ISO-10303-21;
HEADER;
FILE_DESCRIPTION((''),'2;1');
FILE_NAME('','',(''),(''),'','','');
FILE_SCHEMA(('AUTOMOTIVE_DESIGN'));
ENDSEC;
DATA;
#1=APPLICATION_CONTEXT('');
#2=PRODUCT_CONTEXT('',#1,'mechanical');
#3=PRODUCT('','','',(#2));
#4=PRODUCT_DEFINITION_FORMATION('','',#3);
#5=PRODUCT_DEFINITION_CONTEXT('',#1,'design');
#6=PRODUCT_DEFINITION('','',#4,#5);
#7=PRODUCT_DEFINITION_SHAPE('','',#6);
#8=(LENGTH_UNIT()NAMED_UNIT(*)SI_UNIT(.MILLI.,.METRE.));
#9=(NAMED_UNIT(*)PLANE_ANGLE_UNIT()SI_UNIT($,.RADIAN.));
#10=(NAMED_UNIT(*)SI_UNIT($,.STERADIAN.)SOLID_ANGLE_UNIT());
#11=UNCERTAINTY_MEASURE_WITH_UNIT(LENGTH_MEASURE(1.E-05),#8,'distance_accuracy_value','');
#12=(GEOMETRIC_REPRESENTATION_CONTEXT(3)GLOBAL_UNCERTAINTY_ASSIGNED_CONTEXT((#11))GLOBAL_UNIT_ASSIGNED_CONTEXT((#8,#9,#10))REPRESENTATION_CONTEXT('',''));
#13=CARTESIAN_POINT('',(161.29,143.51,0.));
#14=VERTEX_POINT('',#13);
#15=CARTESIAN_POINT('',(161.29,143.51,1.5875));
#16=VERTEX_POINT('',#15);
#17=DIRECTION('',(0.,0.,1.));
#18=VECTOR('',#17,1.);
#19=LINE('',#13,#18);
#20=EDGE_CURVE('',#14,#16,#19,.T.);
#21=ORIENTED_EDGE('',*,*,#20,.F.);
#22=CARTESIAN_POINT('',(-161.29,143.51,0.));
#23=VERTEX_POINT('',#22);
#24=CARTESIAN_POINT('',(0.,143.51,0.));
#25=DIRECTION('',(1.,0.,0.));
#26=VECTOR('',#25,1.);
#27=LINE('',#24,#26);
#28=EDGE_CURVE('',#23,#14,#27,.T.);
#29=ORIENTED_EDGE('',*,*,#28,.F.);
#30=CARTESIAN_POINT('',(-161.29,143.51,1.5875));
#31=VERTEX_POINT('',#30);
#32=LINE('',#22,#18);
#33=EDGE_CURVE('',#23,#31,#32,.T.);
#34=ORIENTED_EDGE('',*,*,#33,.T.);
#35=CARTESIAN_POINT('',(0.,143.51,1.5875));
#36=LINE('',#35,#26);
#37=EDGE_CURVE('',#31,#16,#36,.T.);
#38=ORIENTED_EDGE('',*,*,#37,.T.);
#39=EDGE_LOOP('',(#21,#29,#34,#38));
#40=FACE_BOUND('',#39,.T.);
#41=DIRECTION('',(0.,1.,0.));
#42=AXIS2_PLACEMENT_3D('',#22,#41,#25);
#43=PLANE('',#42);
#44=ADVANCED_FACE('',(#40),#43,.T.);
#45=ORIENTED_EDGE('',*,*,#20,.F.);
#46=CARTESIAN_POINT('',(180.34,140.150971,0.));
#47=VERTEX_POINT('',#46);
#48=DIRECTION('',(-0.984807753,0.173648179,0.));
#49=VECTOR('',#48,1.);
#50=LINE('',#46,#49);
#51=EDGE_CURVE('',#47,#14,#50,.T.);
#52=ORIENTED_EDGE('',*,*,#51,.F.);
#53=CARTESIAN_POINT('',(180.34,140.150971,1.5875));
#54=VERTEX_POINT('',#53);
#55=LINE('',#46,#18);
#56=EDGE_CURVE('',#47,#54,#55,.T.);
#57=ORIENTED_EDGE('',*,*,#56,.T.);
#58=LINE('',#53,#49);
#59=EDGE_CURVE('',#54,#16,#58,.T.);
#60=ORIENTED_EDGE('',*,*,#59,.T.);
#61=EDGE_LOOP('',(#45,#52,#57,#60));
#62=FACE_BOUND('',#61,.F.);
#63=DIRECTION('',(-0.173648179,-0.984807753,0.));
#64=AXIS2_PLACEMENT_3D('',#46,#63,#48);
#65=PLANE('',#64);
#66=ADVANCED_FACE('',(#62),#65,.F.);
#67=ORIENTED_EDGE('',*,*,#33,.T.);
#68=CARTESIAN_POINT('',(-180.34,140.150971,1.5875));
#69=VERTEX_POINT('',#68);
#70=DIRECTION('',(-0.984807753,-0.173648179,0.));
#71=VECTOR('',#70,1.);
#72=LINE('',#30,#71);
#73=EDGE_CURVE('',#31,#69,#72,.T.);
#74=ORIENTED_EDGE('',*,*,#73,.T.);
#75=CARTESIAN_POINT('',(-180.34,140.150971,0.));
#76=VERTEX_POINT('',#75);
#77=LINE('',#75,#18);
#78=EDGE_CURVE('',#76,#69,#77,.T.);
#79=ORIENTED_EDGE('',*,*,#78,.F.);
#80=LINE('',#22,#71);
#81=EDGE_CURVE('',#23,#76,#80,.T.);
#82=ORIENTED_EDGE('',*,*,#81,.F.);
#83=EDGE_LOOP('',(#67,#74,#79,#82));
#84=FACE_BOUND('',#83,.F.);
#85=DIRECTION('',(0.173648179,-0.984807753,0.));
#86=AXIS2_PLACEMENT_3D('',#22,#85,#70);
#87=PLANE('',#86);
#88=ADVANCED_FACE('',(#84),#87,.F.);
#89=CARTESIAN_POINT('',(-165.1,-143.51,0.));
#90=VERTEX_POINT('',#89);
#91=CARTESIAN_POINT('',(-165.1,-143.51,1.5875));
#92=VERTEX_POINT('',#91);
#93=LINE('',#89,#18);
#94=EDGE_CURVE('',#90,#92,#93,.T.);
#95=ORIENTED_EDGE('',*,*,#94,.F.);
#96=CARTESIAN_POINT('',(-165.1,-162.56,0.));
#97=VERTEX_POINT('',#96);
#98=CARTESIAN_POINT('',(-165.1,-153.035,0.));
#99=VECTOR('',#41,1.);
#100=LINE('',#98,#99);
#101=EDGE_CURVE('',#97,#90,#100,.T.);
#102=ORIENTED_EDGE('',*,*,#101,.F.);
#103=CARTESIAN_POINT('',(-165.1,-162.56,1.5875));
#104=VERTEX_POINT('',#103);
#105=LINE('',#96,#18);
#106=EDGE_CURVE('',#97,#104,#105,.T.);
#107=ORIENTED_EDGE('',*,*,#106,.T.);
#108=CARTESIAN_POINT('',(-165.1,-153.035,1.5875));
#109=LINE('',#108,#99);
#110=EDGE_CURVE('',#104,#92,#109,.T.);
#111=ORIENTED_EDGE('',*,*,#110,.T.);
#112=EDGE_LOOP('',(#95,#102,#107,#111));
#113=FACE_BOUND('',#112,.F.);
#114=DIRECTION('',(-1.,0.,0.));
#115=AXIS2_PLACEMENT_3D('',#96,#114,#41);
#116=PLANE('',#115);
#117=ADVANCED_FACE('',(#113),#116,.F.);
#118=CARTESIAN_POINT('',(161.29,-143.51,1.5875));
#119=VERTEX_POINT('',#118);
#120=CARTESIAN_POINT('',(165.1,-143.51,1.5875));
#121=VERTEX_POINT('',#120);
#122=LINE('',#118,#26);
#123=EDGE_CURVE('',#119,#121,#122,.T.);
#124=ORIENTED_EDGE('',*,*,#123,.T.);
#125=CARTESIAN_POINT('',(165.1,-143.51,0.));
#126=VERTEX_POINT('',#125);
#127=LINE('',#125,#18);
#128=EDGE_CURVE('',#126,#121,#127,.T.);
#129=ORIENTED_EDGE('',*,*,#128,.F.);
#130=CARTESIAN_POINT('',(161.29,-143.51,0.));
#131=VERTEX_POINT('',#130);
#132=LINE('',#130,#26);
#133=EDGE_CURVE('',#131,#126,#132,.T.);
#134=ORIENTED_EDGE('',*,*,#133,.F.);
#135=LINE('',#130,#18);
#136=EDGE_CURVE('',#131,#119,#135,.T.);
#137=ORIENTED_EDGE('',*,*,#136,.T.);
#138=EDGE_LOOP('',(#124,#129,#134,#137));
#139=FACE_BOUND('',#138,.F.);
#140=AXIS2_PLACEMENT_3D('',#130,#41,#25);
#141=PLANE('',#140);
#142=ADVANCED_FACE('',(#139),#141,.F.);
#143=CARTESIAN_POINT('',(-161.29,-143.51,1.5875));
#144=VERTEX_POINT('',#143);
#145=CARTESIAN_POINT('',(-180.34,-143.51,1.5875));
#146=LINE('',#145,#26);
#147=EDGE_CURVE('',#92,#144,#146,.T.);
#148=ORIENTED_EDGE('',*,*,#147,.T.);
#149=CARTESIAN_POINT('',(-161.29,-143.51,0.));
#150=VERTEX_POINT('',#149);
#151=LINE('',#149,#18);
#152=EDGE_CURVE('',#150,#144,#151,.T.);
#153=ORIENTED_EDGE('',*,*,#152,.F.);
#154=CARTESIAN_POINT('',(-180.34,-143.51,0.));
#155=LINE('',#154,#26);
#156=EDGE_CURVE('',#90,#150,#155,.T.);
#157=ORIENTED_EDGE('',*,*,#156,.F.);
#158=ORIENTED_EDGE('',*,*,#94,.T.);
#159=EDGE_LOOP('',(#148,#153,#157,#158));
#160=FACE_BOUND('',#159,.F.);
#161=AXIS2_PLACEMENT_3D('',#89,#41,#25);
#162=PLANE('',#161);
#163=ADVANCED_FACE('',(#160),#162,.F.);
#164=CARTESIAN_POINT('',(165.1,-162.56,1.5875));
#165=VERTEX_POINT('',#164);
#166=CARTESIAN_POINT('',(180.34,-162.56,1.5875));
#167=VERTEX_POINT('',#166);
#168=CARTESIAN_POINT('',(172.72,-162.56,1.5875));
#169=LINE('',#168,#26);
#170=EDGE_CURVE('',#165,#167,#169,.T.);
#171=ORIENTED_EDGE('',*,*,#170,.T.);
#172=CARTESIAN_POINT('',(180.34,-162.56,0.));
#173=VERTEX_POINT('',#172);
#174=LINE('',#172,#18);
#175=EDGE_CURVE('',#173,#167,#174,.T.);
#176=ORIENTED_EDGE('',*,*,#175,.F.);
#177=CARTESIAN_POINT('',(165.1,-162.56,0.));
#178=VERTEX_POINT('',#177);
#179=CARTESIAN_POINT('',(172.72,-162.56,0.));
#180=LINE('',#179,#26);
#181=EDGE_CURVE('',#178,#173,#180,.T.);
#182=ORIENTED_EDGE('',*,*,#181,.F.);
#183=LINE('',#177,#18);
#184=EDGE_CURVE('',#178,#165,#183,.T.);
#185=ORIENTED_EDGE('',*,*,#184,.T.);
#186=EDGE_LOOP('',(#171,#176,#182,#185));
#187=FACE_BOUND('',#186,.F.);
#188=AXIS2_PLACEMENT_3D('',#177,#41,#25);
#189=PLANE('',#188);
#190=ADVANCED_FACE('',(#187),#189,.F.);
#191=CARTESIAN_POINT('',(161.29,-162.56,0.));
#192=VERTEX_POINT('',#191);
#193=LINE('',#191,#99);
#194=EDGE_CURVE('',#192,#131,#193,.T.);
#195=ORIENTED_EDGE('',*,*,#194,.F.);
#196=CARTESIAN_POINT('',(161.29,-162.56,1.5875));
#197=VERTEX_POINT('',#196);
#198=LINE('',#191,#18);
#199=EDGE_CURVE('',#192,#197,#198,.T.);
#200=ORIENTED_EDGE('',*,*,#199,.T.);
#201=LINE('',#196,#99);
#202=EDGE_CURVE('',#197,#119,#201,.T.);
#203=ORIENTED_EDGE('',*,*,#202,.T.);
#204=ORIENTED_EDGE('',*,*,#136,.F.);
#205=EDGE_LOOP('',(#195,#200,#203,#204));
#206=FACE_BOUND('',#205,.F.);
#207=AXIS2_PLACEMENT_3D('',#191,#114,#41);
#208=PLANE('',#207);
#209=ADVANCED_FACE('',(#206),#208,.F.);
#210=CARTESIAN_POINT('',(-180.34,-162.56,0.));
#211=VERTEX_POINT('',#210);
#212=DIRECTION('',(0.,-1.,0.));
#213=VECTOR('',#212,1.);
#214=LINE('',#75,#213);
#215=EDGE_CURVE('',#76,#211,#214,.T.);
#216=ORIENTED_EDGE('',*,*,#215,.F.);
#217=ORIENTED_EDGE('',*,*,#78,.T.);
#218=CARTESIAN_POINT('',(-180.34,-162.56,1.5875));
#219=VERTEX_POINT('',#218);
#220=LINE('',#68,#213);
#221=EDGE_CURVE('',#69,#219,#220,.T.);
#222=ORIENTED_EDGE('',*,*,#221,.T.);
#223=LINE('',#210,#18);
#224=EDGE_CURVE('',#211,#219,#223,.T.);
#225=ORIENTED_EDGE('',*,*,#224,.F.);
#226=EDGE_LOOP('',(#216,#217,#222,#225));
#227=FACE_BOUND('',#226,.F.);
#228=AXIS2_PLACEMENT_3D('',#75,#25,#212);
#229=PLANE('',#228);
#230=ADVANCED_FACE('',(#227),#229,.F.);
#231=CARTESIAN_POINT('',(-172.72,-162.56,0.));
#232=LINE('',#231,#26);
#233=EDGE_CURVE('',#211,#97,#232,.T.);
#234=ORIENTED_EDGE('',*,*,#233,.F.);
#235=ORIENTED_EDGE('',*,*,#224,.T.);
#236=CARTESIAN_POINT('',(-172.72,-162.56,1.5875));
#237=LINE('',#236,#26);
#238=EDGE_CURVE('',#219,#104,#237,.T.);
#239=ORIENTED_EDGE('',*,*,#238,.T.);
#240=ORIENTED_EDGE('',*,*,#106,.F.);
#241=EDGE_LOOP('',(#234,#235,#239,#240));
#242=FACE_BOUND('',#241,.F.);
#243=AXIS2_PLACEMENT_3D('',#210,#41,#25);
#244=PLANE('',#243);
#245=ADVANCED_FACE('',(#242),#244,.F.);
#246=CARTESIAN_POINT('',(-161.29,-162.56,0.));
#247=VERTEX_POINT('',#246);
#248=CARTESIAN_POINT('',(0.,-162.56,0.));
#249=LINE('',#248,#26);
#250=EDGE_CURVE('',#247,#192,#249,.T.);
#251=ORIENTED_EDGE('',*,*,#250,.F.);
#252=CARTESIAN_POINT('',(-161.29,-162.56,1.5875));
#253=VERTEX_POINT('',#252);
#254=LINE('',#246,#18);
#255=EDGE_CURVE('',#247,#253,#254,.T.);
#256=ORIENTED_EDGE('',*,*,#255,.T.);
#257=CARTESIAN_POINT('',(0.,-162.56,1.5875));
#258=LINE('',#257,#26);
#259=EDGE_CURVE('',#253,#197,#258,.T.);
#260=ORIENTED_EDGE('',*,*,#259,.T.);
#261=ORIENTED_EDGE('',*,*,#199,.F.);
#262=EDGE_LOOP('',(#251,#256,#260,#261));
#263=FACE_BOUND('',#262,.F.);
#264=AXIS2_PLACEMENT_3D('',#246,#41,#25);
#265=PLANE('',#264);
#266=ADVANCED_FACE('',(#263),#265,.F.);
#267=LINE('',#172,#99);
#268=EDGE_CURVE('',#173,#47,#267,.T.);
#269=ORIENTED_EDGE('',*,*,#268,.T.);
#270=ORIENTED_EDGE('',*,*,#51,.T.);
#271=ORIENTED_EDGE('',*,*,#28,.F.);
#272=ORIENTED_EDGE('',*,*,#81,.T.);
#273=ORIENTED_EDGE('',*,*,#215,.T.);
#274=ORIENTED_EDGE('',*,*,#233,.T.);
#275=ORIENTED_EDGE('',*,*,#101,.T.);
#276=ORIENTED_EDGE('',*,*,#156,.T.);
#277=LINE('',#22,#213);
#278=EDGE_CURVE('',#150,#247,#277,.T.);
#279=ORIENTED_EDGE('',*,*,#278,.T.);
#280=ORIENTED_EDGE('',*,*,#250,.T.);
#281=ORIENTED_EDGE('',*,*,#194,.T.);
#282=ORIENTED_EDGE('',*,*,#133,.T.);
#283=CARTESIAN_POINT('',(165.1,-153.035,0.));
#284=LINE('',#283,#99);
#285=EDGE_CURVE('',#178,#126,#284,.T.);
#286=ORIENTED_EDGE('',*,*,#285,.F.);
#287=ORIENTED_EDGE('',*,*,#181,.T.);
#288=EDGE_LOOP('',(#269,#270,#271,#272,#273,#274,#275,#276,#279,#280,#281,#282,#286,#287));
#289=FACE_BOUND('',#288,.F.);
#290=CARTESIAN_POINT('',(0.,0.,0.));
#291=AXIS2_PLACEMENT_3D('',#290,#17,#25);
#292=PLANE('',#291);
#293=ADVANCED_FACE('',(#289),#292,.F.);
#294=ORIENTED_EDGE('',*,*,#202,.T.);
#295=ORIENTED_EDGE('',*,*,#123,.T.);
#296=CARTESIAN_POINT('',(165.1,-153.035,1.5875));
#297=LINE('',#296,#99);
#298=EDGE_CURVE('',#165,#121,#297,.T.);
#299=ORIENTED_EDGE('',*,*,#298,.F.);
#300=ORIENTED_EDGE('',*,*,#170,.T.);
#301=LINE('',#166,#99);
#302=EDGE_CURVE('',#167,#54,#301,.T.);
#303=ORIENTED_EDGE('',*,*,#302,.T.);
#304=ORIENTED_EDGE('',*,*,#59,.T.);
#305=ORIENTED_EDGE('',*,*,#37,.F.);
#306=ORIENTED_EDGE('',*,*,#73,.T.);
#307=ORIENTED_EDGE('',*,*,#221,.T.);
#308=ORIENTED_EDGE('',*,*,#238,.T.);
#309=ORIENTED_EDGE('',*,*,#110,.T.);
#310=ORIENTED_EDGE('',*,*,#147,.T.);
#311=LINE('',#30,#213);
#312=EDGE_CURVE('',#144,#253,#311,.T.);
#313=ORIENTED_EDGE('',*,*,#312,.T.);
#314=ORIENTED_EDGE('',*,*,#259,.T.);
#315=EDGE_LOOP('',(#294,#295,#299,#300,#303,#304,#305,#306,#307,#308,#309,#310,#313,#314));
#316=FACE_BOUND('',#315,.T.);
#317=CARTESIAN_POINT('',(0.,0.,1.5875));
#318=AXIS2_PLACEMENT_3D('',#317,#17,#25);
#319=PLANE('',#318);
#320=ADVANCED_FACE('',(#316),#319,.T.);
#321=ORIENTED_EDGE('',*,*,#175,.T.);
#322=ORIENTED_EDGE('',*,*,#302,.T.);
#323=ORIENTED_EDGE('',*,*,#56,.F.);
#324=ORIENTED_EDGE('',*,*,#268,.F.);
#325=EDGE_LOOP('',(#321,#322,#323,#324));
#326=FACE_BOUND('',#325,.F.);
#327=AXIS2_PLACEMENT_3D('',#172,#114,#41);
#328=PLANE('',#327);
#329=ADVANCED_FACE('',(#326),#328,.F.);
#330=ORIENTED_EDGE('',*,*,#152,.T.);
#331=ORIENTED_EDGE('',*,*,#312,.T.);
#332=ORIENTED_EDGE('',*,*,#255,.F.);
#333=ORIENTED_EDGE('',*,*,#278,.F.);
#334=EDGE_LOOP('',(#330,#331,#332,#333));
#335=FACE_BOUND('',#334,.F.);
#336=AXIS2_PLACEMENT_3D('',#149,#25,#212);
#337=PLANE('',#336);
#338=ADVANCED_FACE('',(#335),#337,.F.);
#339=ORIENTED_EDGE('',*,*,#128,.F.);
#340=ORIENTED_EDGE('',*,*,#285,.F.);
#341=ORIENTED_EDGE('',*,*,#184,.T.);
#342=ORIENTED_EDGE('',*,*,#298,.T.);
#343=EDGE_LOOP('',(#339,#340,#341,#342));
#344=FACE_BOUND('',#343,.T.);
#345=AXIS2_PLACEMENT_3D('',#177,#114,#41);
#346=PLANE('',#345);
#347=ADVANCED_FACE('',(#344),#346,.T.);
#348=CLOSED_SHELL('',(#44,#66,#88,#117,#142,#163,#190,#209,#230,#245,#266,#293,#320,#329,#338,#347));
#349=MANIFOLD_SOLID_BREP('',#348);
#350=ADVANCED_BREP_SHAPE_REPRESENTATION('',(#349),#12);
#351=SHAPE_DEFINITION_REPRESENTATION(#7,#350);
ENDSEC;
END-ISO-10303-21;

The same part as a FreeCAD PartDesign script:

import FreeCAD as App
import Part
import Sketcher

V = App.Vector
Q = App.Units.Quantity

doc = App.newDocument("Part")
body = doc.addObject("PartDesign::Body", "Body")

sketch1 = body.newObject("Sketcher::SketchObject", "Sketch")
sketch1.AttachmentSupport = (doc.getObject("XY_Plane"), [""])
sketch1.MapMode = "FlatFace"
sketch1.addGeometry([
    Part.LineSegment(V(-161.3, -143.5, 0), V(-161.3, -162.6, 0)),
    Part.LineSegment(V(-161.3, -162.6, 0), V(161.3, -162.6, 0)),
    Part.LineSegment(V(161.3, -162.6, 0), V(161.3, -143.5, 0)),
    Part.LineSegment(V(161.3, -143.5, 0), V(165.1, -143.5, 0)),
    Part.LineSegment(V(165.1, -143.5, 0), V(165.1, -162.6, 0)),
    Part.LineSegment(V(165.1, -162.6, 0), V(180.3, -162.6, 0)),
    Part.LineSegment(V(180.3, -162.6, 0), V(180.3, 140.2, 0)),
    Part.LineSegment(V(180.3, 140.2, 0), V(161.3, 143.5, 0)),
    Part.LineSegment(V(161.3, 143.5, 0), V(-161.3, 143.5, 0)),
    Part.LineSegment(V(-161.3, 143.5, 0), V(-180.3, 140.2, 0)),
    Part.LineSegment(V(-180.3, 140.2, 0), V(-180.3, -162.6, 0)),
    Part.LineSegment(V(-180.3, -162.6, 0), V(-165.1, -162.6, 0)),
    Part.LineSegment(V(-165.1, -162.6, 0), V(-165.1, -143.5, 0)),
    Part.LineSegment(V(-165.1, -143.5, 0), V(-161.3, -143.5, 0)),
], False)
sketch1.addConstraint([
    Sketcher.Constraint("Coincident", 0, 2, 1, 1),
    Sketcher.Constraint("Coincident", 1, 2, 2, 1),
    Sketcher.Constraint("Coincident", 2, 2, 3, 1),
    Sketcher.Constraint("Coincident", 3, 2, 4, 1),
    Sketcher.Constraint("Coincident", 4, 2, 5, 1),
    Sketcher.Constraint("Coincident", 5, 2, 6, 1),
    Sketcher.Constraint("Coincident", 6, 2, 7, 1),
    Sketcher.Constraint("Coincident", 7, 2, 8, 1),
    Sketcher.Constraint("Coincident", 8, 2, 9, 1),
    Sketcher.Constraint("Coincident", 9, 2, 10, 1),
    Sketcher.Constraint("Coincident", 10, 2, 11, 1),
    Sketcher.Constraint("Coincident", 11, 2, 12, 1),
    Sketcher.Constraint("Coincident", 12, 2, 13, 1),
    Sketcher.Constraint("Coincident", 13, 2, 0, 1),
    Sketcher.Constraint("Vertical", 0),
    Sketcher.Constraint("Horizontal", 1),
    Sketcher.Constraint("Vertical", 2),
    Sketcher.Constraint("Horizontal", 3),
    Sketcher.Constraint("Vertical", 4),
    Sketcher.Constraint("Horizontal", 5),
    Sketcher.Constraint("Vertical", 6),
    Sketcher.Constraint("Horizontal", 8),
    Sketcher.Constraint("Vertical", 10),
    Sketcher.Constraint("Horizontal", 11),
    Sketcher.Constraint("Vertical", 12),
    Sketcher.Constraint("Horizontal", 13),
    Sketcher.Constraint("Symmetric", 2, 2, 8, 2, -1, 1),
    Sketcher.Constraint("Symmetric", 7, 2, 13, 2, -1, 1),
    Sketcher.Constraint("Symmetric", 6, 2, 9, 2, -2),
    Sketcher.Constraint("Symmetric", 4, 2, 11, 2, -2),
    Sketcher.Constraint("Horizontal", 1, 2, 4, 2),
    Sketcher.Constraint("Vertical", 2, 2, 7, 2),
    Sketcher.Constraint("DistanceX", 1, 1, 1, 2, Q("12.7 in")),
    Sketcher.Constraint("DistanceX", 5, 1, 5, 2, Q("0.6 in")),
    Sketcher.Constraint("Angle", 7, Q("170 deg")),
    Sketcher.Constraint("DistanceX", 3, 1, 3, 2, Q("0.15 in")),
    Sketcher.Constraint("DistanceY", 0, 2, 0, 1, Q("0.75 in")),
    Sketcher.Constraint("DistanceY", 0, 2, -1, 1, Q("6.4 in")),
])
pad1 = body.newObject("PartDesign::Pad", "Pad")
pad1.Profile = sketch1
pad1.Length = Q("0.0625 in")

doc.recompute()
